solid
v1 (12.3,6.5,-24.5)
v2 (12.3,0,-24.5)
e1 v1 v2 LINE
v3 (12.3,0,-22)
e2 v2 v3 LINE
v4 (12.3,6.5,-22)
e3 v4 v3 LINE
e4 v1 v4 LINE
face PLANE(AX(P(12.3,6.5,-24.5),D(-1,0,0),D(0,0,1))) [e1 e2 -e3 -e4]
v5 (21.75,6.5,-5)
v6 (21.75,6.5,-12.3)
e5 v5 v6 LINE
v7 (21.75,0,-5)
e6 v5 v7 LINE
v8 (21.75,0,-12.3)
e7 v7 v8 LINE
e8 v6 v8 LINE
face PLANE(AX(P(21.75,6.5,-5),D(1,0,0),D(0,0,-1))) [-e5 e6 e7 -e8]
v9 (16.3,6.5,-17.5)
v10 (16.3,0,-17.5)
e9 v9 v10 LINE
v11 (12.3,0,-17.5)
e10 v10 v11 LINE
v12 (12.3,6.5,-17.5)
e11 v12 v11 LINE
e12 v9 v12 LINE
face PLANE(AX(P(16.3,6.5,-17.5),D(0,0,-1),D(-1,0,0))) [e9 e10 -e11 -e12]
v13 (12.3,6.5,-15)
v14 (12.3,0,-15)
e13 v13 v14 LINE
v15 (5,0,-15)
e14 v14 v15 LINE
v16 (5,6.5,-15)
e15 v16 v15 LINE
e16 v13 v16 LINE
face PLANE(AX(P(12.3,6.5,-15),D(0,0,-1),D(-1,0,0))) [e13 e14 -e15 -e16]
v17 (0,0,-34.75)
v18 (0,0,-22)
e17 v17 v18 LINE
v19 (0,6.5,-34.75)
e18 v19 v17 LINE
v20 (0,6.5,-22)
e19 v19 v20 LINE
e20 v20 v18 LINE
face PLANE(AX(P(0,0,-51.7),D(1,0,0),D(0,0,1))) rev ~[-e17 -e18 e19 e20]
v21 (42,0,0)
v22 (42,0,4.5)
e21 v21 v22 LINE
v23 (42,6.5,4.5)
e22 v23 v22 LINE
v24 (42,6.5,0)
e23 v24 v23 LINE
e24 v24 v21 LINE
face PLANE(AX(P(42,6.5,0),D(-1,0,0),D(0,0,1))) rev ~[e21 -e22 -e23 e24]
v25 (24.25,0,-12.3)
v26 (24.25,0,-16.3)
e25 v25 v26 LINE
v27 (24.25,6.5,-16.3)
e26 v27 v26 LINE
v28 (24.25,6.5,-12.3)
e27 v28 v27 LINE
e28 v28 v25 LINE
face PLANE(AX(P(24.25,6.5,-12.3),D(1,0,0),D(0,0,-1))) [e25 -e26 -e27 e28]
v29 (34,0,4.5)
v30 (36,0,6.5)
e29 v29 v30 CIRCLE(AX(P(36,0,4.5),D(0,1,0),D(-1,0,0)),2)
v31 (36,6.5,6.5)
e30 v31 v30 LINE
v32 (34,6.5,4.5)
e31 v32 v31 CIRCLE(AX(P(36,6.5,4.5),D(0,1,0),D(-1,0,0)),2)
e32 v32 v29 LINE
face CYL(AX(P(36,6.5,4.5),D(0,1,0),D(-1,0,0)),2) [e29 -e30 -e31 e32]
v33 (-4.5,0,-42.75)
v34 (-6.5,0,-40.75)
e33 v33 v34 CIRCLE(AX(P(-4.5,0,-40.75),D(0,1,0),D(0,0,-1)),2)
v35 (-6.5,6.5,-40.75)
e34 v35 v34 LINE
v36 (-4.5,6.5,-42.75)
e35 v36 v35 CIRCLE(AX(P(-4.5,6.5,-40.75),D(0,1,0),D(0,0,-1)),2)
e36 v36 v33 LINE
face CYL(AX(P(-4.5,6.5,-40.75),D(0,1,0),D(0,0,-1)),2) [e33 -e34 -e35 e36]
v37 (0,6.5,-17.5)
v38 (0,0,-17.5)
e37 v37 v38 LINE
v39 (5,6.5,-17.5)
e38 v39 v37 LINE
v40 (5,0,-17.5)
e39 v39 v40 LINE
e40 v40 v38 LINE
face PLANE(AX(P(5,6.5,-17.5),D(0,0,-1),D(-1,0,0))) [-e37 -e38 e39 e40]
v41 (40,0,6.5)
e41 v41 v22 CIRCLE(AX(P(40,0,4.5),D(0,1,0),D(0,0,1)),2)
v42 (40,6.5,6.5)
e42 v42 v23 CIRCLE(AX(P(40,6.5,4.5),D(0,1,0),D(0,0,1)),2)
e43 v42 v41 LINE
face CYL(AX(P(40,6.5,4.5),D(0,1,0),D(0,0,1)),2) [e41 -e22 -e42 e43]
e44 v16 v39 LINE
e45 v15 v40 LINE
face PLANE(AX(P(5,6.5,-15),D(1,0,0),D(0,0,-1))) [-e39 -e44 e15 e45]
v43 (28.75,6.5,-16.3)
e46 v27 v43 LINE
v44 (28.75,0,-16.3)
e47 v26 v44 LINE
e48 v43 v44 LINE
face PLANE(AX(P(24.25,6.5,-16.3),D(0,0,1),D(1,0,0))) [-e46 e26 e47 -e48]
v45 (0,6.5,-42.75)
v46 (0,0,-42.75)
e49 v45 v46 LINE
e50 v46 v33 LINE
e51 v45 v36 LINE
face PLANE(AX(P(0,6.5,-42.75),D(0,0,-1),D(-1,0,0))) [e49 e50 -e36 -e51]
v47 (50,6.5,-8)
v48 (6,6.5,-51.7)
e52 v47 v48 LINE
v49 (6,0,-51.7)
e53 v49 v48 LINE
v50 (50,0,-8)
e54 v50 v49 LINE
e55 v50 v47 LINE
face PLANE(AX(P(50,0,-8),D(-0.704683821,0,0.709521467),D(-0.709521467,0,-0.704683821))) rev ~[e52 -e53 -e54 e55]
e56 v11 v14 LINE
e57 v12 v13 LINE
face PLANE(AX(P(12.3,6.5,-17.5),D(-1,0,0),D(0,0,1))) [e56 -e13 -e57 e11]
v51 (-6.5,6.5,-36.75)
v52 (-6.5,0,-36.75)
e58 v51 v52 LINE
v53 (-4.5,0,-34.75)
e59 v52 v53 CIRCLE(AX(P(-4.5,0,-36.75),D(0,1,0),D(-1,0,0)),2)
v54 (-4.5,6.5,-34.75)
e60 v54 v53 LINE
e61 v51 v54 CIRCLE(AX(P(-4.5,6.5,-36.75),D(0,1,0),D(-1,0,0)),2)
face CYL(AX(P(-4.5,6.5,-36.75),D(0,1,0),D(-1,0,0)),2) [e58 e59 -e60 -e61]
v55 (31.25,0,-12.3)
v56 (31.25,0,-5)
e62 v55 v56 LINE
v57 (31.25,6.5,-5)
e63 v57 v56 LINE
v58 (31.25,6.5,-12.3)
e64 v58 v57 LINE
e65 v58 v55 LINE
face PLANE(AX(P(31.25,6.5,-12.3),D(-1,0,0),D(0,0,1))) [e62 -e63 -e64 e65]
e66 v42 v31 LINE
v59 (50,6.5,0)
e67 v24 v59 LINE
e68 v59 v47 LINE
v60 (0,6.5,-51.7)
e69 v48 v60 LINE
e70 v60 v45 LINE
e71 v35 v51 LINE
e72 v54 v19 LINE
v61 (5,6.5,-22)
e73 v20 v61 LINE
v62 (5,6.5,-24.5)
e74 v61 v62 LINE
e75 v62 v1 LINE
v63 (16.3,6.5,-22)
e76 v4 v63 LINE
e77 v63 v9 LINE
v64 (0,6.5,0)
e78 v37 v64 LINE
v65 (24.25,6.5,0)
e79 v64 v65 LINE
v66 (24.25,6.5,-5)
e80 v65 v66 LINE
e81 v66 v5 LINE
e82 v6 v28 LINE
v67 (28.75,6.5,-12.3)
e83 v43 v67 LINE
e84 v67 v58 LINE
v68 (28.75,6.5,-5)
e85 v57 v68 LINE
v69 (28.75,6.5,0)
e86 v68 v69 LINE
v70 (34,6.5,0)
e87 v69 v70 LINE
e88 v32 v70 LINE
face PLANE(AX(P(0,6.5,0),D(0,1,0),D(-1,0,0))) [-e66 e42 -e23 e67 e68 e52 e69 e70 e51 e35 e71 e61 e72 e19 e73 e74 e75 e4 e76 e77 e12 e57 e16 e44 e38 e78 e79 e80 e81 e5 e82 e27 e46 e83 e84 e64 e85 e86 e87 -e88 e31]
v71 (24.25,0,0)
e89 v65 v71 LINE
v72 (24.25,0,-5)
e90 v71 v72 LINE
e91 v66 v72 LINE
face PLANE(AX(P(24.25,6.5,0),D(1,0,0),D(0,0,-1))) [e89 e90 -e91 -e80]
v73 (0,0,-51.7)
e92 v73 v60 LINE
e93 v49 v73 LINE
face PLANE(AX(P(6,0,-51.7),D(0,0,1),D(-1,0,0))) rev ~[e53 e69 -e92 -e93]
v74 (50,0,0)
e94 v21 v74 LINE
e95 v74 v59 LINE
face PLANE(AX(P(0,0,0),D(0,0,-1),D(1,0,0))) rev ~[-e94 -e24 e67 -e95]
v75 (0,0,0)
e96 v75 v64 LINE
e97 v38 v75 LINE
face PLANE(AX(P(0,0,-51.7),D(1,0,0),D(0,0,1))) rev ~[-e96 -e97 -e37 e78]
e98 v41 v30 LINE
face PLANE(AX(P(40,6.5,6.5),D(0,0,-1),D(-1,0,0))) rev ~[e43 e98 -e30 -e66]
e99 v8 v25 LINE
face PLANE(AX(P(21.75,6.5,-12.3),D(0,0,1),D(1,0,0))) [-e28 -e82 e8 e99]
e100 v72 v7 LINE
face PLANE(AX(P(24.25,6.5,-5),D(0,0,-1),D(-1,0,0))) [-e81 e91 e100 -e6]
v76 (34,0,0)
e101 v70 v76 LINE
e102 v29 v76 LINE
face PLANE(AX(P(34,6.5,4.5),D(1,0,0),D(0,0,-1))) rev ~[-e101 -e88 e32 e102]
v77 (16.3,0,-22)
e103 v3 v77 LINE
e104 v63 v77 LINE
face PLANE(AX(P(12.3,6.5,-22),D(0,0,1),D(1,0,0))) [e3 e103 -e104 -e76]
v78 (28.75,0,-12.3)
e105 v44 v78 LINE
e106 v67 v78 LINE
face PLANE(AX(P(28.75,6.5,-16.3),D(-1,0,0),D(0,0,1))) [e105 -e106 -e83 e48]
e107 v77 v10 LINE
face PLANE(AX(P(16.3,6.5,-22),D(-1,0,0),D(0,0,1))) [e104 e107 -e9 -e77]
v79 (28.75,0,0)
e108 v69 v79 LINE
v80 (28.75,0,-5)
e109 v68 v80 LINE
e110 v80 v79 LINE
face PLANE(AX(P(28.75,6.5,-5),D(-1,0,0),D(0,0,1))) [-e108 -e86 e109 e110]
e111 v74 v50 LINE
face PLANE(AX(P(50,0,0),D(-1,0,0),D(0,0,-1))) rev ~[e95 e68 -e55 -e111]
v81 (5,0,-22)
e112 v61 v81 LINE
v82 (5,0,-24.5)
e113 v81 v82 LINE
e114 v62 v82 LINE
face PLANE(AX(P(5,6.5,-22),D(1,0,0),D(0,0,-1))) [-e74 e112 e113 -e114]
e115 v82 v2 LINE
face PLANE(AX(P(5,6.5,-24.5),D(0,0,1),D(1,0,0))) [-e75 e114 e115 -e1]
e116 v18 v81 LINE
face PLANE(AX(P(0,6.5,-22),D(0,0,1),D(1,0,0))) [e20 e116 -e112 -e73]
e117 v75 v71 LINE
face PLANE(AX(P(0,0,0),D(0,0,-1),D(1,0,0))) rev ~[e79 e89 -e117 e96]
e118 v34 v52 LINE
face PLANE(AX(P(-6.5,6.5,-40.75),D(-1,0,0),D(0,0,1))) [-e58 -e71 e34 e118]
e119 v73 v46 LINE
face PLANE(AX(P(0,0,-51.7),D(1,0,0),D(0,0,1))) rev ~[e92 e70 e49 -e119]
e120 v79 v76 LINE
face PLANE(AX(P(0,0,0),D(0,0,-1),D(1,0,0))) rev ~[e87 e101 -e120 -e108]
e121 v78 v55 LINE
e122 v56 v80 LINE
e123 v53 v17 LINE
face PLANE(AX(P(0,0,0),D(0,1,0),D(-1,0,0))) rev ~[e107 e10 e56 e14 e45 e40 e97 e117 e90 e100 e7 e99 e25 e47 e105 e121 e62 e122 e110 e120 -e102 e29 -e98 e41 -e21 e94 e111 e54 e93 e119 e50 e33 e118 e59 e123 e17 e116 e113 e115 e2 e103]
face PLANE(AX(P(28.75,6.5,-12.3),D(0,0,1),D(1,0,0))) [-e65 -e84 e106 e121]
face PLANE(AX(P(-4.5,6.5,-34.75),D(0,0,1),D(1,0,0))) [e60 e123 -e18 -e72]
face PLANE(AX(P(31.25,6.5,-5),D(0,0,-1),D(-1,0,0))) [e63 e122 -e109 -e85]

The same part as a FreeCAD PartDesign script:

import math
import FreeCAD as App
import Part
import Sketcher
from FreeCAD import Vector
Q = App.Units.Quantity

doc = App.newDocument("Part")
params = doc.addObject("Spreadsheet::Sheet", "Params")
for row, (alias, value) in enumerate([
    ("sketch1_width", "6 mm"),
    ("sketch1_width2", "50 mm"),
    ("sketch1_height", "8 mm"),
    ("sketch1_height2", "51.7 mm"),
    ("pad1_length", "6.5 mm"),
    ("sketch2_radius", "2 mm"),
    ("sketch2_width", "8 mm"),
    ("pad2_length", "6.5 mm"),
    ("sketch3_height", "5 mm"),
    ("sketch3_height2", "4 mm"),
    ("sketch3_width", "4.5 mm"),
    ("sketch3_width2", "2.5 mm"),
    ("sketch3_height3", "7.3 mm"),
    ("sketch4_width", "5 mm"),
    ("sketch4_width2", "4 mm"),
    ("sketch4_width3", "7.3 mm"),
    ("sketch4_height", "4.5 mm"),
    ("sketch4_height2", "2.5 mm"),
    ("sketch5_radius", "2 mm"),
    ("sketch5_height", "8 mm"),
    ("pad3_length", "6.5 mm"),
], start=1):
    params.set(f"A{row}", alias)
    params.set(f"B{row}", "=" + value)
    params.setAlias(f"B{row}", alias)

body = doc.addObject("PartDesign::Body", "Body")

# Sketch on XZ plane
sketch1 = body.newObject("Sketcher::SketchObject", "Sketch")
sketch1.AttachmentSupport = (doc.getObject("XZ_Plane"), [""])
sketch1.MapMode = "FlatFace"
sketch1.addGeometry([
    Part.LineSegment(Vector(6, -51.7, 0), Vector(0, -51.7, 0)),  # 0
    Part.LineSegment(Vector(0, -51.7, 0), Vector(0, 0, 0)),  # 1
    Part.LineSegment(Vector(0, 0, 0), Vector(50, 0, 0)),  # 2
    Part.LineSegment(Vector(50, 0, 0), Vector(50, -8, 0)),  # 3
    Part.LineSegment(Vector(50, -8, 0), Vector(6, -51.7, 0)),  # 4
], False)
sketch1.addConstraint([
    Sketcher.Constraint("Coincident", 0, 2, 1, 1),
    Sketcher.Constraint("Coincident", 1, 2, 2, 1),
    Sketcher.Constraint("Coincident", 2, 2, 3, 1),
    Sketcher.Constraint("Coincident", 3, 2, 4, 1),
    Sketcher.Constraint("Coincident", 4, 2, 0, 1),
    Sketcher.Constraint("Horizontal", 0),
    Sketcher.Constraint("Vertical", 1),
    Sketcher.Constraint("Horizontal", 2),
    Sketcher.Constraint("Vertical", 3),
    Sketcher.Constraint("Coincident", 1, 2, -1, 1),
    Sketcher.Constraint("DistanceX", 0, 2, 0, 1, Q("6 mm")),
    Sketcher.Constraint("DistanceX", 2, 1, 2, 2, Q("50 mm")),
    Sketcher.Constraint("DistanceY", 3, 2, 3, 1, Q("8 mm")),
    Sketcher.Constraint("DistanceY", 1, 1, 1, 2, Q("51.7 mm")),
])
sketch1.setExpression("Constraints[10]", "Params.sketch1_width")
sketch1.setExpression("Constraints[11]", "Params.sketch1_width2")
sketch1.setExpression("Constraints[12]", "Params.sketch1_height")
sketch1.setExpression("Constraints[13]", "Params.sketch1_height2")
pad1 = body.newObject("PartDesign::Pad", "Pad")
pad1.Profile = sketch1
pad1.setExpression("Length", "Params.pad1_length")
pad1.Reversed = True

# Sketch on XZ plane
sketch2 = body.newObject("Sketcher::SketchObject", "Sketch001")
sketch2.AttachmentSupport = (doc.getObject("XZ_Plane"), [""])
sketch2.MapMode = "FlatFace"
sketch2.AttachmentOffset = App.Placement(Vector(0, 0, -6.5), App.Rotation())
sketch2.addGeometry([
    Part.LineSegment(Vector(42, 0, 0), Vector(34, 0, 0)),  # 0
    Part.LineSegment(Vector(34, 0, 0), Vector(34, 4.5, 0)),  # 1
    Part.ArcOfCircle(Part.Circle(Vector(36, 4.5, 0), Vector(0, 0, 1), 2), math.radians(90), math.radians(180)),  # 2
    Part.LineSegment(Vector(36, 6.5, 0), Vector(40, 6.5, 0)),  # 3
    Part.ArcOfCircle(Part.Circle(Vector(40, 4.5, 0), Vector(0, 0, 1), 2), math.radians(0), math.radians(90)),  # 4
    Part.LineSegment(Vector(42, 4.5, 0), Vector(42, 0, 0)),  # 5
], False)
sketch2.addConstraint([
    Sketcher.Constraint("Coincident", 0, 2, 1, 1),
    Sketcher.Constraint("Tangent", 1, 2, 2, 2),
    Sketcher.Constraint("Tangent", 2, 1, 3, 1),
    Sketcher.Constraint("Tangent", 3, 2, 4, 2),
    Sketcher.Constraint("Tangent", 4, 1, 5, 1),
    Sketcher.Constraint("Coincident", 5, 2, 0, 1),
    Sketcher.Constraint("Horizontal", 0),
    Sketcher.Constraint("Vertical", 1),
    Sketcher.Constraint("Horizontal", 3),
    Sketcher.Constraint("Vertical", 5),
    Sketcher.Constraint("Equal", 2, 4),
    Sketcher.Constraint("PointOnObject", 0, 2, -1),
    Sketcher.Constraint("Radius", 2, Q("2 mm")),
    Sketcher.Constraint("DistanceX", 0, 2, 0, 1, Q("8 mm")),
    Sketcher.Constraint("DistanceY", -1, 1, 2, 1, Q("6.5 mm")),
    Sketcher.Constraint("DistanceX", -1, 1, 2, 3, Q("36 mm")),
])
sketch2.setExpression("Constraints[12]", "Params.sketch2_radius")
sketch2.setExpression("Constraints[13]", "Params.sketch2_width")
pad2 = body.newObject("PartDesign::Pad", "Pad001")
pad2.Profile = sketch2
pad2.setExpression("Length", "Params.pad2_length")

# Sketch on XZ plane
sketch3 = body.newObject("Sketcher::SketchObject", "Sketch002")
sketch3.AttachmentSupport = (doc.getObject("XZ_Plane"), [""])
sketch3.MapMode = "FlatFace"
sketch3.AttachmentOffset = App.Placement(Vector(0, 0, -6.5), App.Rotation())
sketch3.addGeometry([
    Part.LineSegment(Vector(24.25, -5, 0), Vector(24.25, 0, 0)),  # 0
    Part.LineSegment(Vector(24.25, 0, 0), Vector(28.75, 0, 0)),  # 1
    Part.LineSegment(Vector(28.75, 0, 0), Vector(28.75, -5, 0)),  # 2
    Part.LineSegment(Vector(28.75, -5, 0), Vector(31.25, -5, 0)),  # 3
    Part.LineSegment(Vector(31.25, -5, 0), Vector(31.25, -12.3, 0)),  # 4
    Part.LineSegment(Vector(31.25, -12.3, 0), Vector(28.75, -12.3, 0)),  # 5
    Part.LineSegment(Vector(28.75, -12.3, 0), Vector(28.75, -16.3, 0)),  # 6
    Part.LineSegment(Vector(28.75, -16.3, 0), Vector(24.25, -16.3, 0)),  # 7
    Part.LineSegment(Vector(24.25, -16.3, 0), Vector(24.25, -12.3, 0)),  # 8
    Part.LineSegment(Vector(24.25, -12.3, 0), Vector(21.75, -12.3, 0)),  # 9
    Part.LineSegment(Vector(21.75, -12.3, 0), Vector(21.75, -5, 0)),  # 10
    Part.LineSegment(Vector(21.75, -5, 0), Vector(24.25, -5, 0)),  # 11
], False)
sketch3.addConstraint([
    Sketcher.Constraint("Coincident", 0, 2, 1, 1),
    Sketcher.Constraint("Coincident", 1, 2, 2, 1),
    Sketcher.Constraint("Coincident", 2, 2, 3, 1),
    Sketcher.Constraint("Coincident", 3, 2, 4, 1),
    Sketcher.Constraint("Coincident", 4, 2, 5, 1),
    Sketcher.Constraint("Coincident", 5, 2, 6, 1),
    Sketcher.Constraint("Coincident", 6, 2, 7, 1),
    Sketcher.Constraint("Coincident", 7, 2, 8, 1),
    Sketcher.Constraint("Coincident", 8, 2, 9, 1),
    Sketcher.Constraint("Coincident", 9, 2, 10, 1),
    Sketcher.Constraint("Coincident", 10, 2, 11, 1),
    Sketcher.Constraint("Coincident", 11, 2, 0, 1),
    Sketcher.Constraint("Vertical", 0),
    Sketcher.Constraint("Horizontal", 1),
    Sketcher.Constraint("Vertical", 2),
    Sketcher.Constraint("Horizontal", 3),
    Sketcher.Constraint("Vertical", 4),
    Sketcher.Constraint("Horizontal", 5),
    Sketcher.Constraint("Vertical", 6),
    Sketcher.Constraint("Horizontal", 7),
    Sketcher.Constraint("Vertical", 8),
    Sketcher.Constraint("Horizontal", 9),
    Sketcher.Constraint("Vertical", 10),
    Sketcher.Constraint("Horizontal", 11),
    Sketcher.Constraint("PointOnObject", 0, 2, -1),
    Sketcher.Constraint("Horizontal", 5, 2, 8, 2),
    Sketcher.Constraint("Horizontal", 3, 2, 10, 2),
    Sketcher.Constraint("Vertical", 2, 2, 5, 2),
    Sketcher.Constraint("Vertical", 0, 2, 7, 2),
    Sketcher.Constraint("Equal", 5, 9),
    Sketcher.Constraint("DistanceY", 0, 1, 0, 2, Q("5 mm")),
    Sketcher.Constraint("DistanceY", 6, 2, 6, 1, Q("4 mm")),
    Sketcher.Constraint("DistanceX", 1, 1, 1, 2, Q("4.5 mm")),
    Sketcher.Constraint("DistanceX", 3, 1, 3, 2, Q("2.5 mm")),
    Sketcher.Constraint("DistanceY", 4, 2, 4, 1, Q("7.3 mm")),
    Sketcher.Constraint("DistanceX", -1, 1, 0, 2, Q("24.25 mm")),
])
sketch3.setExpression("Constraints[30]", "Params.sketch3_height")
sketch3.setExpression("Constraints[31]", "Params.sketch3_height2")
sketch3.setExpression("Constraints[32]", "Params.sketch3_width")
sketch3.setExpression("Constraints[33]", "Params.sketch3_width2")
sketch3.setExpression("Constraints[34]", "Params.sketch3_height3")
pocket1 = body.newObject("PartDesign::Pocket", "Pocket")
pocket1.Profile = sketch3
pocket1.Type = "ThroughAll"
pocket1.Reversed = True

# Sketch on XZ plane
sketch4 = body.newObject("Sketcher::SketchObject", "Sketch003")
sketch4.AttachmentSupport = (doc.getObject("XZ_Plane"), [""])
sketch4.MapMode = "FlatFace"
sketch4.AttachmentOffset = App.Placement(Vector(0, 0, -6.5), App.Rotation())
sketch4.addGeometry([
    Part.LineSegment(Vector(5, -22, 0), Vector(0, -22, 0)),  # 0
    Part.LineSegment(Vector(0, -22, 0), Vector(0, -17.5, 0)),  # 1
    Part.LineSegment(Vector(0, -17.5, 0), Vector(5, -17.5, 0)),  # 2
    Part.LineSegment(Vector(5, -17.5, 0), Vector(5, -15, 0)),  # 3
    Part.LineSegment(Vector(5, -15, 0), Vector(12.3, -15, 0)),  # 4
    Part.LineSegment(Vector(12.3, -15, 0), Vector(12.3, -17.5, 0)),  # 5
    Part.LineSegment(Vector(12.3, -17.5, 0), Vector(16.3, -17.5, 0)),  # 6
    Part.LineSegment(Vector(16.3, -17.5, 0), Vector(16.3, -22, 0)),  # 7
    Part.LineSegment(Vector(16.3, -22, 0), Vector(12.3, -22, 0)),  # 8
    Part.LineSegment(Vector(12.3, -22, 0), Vector(12.3, -24.5, 0)),  # 9
    Part.LineSegment(Vector(12.3, -24.5, 0), Vector(5, -24.5, 0)),  # 10
    Part.LineSegment(Vector(5, -24.5, 0), Vector(5, -22, 0)),  # 11
], False)
sketch4.addConstraint([
    Sketcher.Constraint("Coincident", 0, 2, 1, 1),
    Sketcher.Constraint("Coincident", 1, 2, 2, 1),
    Sketcher.Constraint("Coincident", 2, 2, 3, 1),
    Sketcher.Constraint("Coincident", 3, 2, 4, 1),
    Sketcher.Constraint("Coincident", 4, 2, 5, 1),
    Sketcher.Constraint("Coincident", 5, 2, 6, 1),
    Sketcher.Constraint("Coincident", 6, 2, 7, 1),
    Sketcher.Constraint("Coincident", 7, 2, 8, 1),
    Sketcher.Constraint("Coincident", 8, 2, 9, 1),
    Sketcher.Constraint("Coincident", 9, 2, 10, 1),
    Sketcher.Constraint("Coincident", 10, 2, 11, 1),
    Sketcher.Constraint("Coincident", 11, 2, 0, 1),
    Sketcher.Constraint("Horizontal", 0),
    Sketcher.Constraint("Vertical", 1),
    Sketcher.Constraint("Horizontal", 2),
    Sketcher.Constraint("Vertical", 3),
    Sketcher.Constraint("Horizontal", 4),
    Sketcher.Constraint("Vertical", 5),
    Sketcher.Constraint("Horizontal", 6),
    Sketcher.Constraint("Vertical", 7),
    Sketcher.Constraint("Horizontal", 8),
    Sketcher.Constraint("Vertical", 9),
    Sketcher.Constraint("Horizontal", 10),
    Sketcher.Constraint("Vertical", 11),
    Sketcher.Constraint("PointOnObject", 0, 2, -2),
    Sketcher.Constraint("Horizontal", 2, 2, 5, 2),
    Sketcher.Constraint("Horizontal", 0, 2, 7, 2),
    Sketcher.Constraint("Vertical", 5, 2, 8, 2),
    Sketcher.Constraint("Vertical", 3, 2, 10, 2),
    Sketcher.Constraint("Equal", 5, 9),
    Sketcher.Constraint("DistanceX", 0, 2, 0, 1, Q("5 mm")),
    Sketcher.Constraint("DistanceX", 6, 1, 6, 2, Q("4 mm")),
    Sketcher.Constraint("DistanceX", 4, 1, 4, 2, Q("7.3 mm")),
    Sketcher.Constraint("DistanceY", 1, 1, 1, 2, Q("4.5 mm")),
    Sketcher.Constraint("DistanceY", 3, 1, 3, 2, Q("2.5 mm")),
    Sketcher.Constraint("DistanceY", 0, 2, -1, 1, Q("22 mm")),
])
sketch4.setExpression("Constraints[30]", "Params.sketch4_width")
sketch4.setExpression("Constraints[31]", "Params.sketch4_width2")
sketch4.setExpression("Constraints[32]", "Params.sketch4_width3")
sketch4.setExpression("Constraints[33]", "Params.sketch4_height")
sketch4.setExpression("Constraints[34]", "Params.sketch4_height2")
pocket2 = body.newObject("PartDesign::Pocket", "Pocket001")
pocket2.Profile = sketch4
pocket2.Type = "ThroughAll"
pocket2.Reversed = True

# Sketch on XZ plane
sketch5 = body.newObject("Sketcher::SketchObject", "Sketch004")
sketch5.AttachmentSupport = (doc.getObject("XZ_Plane"), [""])
sketch5.MapMode = "FlatFace"
sketch5.AttachmentOffset = App.Placement(Vector(0, 0, -6.5), App.Rotation())
sketch5.addGeometry([
    Part.LineSegment(Vector(0, -34.75, 0), Vector(0, -42.75, 0)),  # 0
    Part.LineSegment(Vector(0, -42.75, 0), Vector(-4.5, -42.75, 0)),  # 1
    Part.ArcOfCircle(Part.Circle(Vector(-4.5, -40.75, 0), Vector(0, 0, 1), 2), math.radians(180), math.radians(270)),  # 2
    Part.LineSegment(Vector(-6.5, -40.75, 0), Vector(-6.5, -36.75, 0)),  # 3
    Part.ArcOfCircle(Part.Circle(Vector(-4.5, -36.75, 0), Vector(0, 0, 1), 2), math.radians(90), math.radians(180)),  # 4
    Part.LineSegment(Vector(-4.5, -34.75, 0), Vector(0, -34.75, 0)),  # 5
], False)
sketch5.addConstraint([
    Sketcher.Constraint("Coincident", 0, 2, 1, 1),
    Sketcher.Constraint("Tangent", 1, 2, 2, 2),
    Sketcher.Constraint("Tangent", 2, 1, 3, 1),
    Sketcher.Constraint("Tangent", 3, 2, 4, 2),
    Sketcher.Constraint("Tangent", 4, 1, 5, 1),
    Sketcher.Constraint("Coincident", 5, 2, 0, 1),
    Sketcher.Constraint("Vertical", 0),
    Sketcher.Constraint("Horizontal", 1),
    Sketcher.Constraint("Vertical", 3),
    Sketcher.Constraint("Horizontal", 5),
    Sketcher.Constraint("Equal", 2, 4),
    Sketcher.Constraint("PointOnObject", 0, 2, -2),
    Sketcher.Constraint("Radius", 2, Q("2 mm")),
    Sketcher.Constraint("DistanceY", 0, 2, 0, 1, Q("8 mm")),
    Sketcher.Constraint("DistanceX", 2, 1, -1, 1, Q("6.5 mm")),
    Sketcher.Constraint("DistanceY", 2, 3, -1, 1, Q("40.75 mm")),
])
sketch5.setExpression("Constraints[12]", "Params.sketch5_radius")
sketch5.setExpression("Constraints[13]", "Params.sketch5_height")
pad3 = body.newObject("PartDesign::Pad", "Pad002")
pad3.Profile = sketch5
pad3.setExpression("Length", "Params.pad3_length")

doc.recompute()
